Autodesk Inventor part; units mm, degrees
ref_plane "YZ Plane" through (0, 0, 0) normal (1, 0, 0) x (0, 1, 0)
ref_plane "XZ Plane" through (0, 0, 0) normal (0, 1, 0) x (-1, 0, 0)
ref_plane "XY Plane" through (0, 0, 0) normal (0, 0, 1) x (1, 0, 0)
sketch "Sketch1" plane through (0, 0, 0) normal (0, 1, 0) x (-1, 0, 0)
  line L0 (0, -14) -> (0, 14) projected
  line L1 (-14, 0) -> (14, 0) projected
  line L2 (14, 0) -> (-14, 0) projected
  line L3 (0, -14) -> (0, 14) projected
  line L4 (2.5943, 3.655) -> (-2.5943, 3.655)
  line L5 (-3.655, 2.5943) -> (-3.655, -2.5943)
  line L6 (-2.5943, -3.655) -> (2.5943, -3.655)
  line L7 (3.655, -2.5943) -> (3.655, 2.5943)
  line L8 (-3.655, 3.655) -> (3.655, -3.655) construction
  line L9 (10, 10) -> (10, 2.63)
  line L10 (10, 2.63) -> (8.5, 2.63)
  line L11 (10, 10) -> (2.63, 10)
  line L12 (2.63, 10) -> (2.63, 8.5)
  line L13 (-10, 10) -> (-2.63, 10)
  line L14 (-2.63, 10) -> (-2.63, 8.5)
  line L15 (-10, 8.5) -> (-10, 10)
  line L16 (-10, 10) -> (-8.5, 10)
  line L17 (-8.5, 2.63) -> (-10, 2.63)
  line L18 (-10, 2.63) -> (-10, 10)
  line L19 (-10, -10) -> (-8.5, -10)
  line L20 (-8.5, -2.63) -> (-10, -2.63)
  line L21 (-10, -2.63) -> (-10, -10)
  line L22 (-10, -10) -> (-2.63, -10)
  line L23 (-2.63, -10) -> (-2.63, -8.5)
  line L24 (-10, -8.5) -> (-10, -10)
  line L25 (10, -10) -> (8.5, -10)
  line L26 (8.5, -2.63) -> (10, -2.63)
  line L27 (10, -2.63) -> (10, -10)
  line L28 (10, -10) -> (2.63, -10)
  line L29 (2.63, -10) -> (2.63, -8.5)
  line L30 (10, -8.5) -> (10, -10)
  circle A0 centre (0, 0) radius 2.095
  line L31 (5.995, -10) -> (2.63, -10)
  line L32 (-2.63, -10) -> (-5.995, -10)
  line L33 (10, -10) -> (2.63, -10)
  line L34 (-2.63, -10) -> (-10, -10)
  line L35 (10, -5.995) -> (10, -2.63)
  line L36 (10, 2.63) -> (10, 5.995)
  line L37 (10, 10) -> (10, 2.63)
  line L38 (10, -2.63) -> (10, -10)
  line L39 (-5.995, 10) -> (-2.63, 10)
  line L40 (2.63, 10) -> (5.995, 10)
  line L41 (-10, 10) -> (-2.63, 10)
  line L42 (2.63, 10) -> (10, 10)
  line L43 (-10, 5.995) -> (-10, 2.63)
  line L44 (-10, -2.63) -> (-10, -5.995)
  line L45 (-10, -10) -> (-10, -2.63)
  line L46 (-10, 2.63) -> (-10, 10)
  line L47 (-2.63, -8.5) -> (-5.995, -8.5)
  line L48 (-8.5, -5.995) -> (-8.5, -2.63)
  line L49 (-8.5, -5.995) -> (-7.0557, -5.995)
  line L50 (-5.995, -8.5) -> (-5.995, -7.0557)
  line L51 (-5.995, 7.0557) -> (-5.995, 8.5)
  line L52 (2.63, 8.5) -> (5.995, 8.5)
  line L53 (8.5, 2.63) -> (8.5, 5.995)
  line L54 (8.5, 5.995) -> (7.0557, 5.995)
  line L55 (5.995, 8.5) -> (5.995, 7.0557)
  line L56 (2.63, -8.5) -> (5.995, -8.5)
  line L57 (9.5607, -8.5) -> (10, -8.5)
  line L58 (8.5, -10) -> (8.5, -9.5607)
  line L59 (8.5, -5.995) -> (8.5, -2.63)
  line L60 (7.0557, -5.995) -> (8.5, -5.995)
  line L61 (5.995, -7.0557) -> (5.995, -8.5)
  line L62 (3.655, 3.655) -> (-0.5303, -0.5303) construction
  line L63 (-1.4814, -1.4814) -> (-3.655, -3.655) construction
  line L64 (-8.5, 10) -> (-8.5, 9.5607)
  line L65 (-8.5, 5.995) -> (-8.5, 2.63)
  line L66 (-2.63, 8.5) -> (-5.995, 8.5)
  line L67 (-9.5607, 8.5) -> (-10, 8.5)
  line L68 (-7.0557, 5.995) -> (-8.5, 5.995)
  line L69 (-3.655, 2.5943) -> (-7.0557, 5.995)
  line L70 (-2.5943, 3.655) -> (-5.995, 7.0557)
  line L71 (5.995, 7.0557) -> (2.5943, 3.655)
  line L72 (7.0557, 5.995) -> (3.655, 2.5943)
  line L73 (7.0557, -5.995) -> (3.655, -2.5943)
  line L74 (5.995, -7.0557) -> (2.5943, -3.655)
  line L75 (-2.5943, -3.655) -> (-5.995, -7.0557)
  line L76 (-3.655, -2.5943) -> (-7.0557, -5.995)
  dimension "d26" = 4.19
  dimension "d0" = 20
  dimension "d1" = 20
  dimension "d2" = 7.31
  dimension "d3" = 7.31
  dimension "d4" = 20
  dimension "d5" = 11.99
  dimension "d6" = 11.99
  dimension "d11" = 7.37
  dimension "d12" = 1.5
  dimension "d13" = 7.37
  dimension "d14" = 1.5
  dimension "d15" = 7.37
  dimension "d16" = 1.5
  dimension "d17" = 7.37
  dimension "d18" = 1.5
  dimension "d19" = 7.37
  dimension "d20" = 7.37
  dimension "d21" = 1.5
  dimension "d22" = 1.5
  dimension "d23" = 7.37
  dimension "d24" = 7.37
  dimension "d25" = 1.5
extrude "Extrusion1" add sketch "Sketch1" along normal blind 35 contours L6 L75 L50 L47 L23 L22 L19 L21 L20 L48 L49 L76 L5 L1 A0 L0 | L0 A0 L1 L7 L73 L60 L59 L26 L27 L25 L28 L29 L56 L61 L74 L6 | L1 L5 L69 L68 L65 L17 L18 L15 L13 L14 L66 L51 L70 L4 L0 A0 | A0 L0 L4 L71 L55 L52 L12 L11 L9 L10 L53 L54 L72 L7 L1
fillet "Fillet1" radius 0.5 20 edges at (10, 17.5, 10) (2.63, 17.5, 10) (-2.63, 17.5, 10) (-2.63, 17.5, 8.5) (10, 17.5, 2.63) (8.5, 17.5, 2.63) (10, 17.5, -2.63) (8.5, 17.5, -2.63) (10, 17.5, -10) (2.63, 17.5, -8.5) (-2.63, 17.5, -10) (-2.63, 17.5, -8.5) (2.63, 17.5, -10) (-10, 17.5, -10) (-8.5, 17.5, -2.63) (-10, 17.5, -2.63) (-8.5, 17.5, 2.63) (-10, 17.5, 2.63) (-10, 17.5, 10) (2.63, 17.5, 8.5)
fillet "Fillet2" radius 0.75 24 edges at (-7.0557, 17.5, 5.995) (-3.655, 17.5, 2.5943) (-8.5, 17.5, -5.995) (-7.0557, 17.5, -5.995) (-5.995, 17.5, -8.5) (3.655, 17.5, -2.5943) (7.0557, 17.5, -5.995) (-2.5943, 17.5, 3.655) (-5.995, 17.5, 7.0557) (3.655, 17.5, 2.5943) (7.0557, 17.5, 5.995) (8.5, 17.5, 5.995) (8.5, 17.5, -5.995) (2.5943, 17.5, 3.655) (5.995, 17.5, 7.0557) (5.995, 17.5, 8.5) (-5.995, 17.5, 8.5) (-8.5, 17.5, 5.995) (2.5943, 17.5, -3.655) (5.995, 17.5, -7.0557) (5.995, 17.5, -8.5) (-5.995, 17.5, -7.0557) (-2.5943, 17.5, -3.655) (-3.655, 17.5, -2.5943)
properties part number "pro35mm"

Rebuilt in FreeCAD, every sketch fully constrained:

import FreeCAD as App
import Part
import Sketcher
Q = App.Units.Quantity


def edges_at(feature, points):
    """Names of the edges that pass closest to the given points."""
    edges = feature.Shape.Edges
    near = lambda p: min(range(len(edges)), key=lambda i: edges[i].distToShape(Part.Vertex(*p))[0])
    return sorted({f"Edge{near(p) + 1}" for p in points})


def add_polygon(sketch, points):
    """Adds a closed chain of lines whose ends are joined by coincident constraints."""
    first, n = sketch.GeometryCount, len(points)
    for a, b in zip(points, points[1:] + points[:1]):
        sketch.addGeometry(Part.LineSegment(App.Vector(*a, 0), App.Vector(*b, 0)), False)
    for i in range(n):
        sketch.addConstraint(Sketcher.Constraint("Coincident", first + i, 2, first + (i + 1) % n, 1))

doc = App.newDocument("Part")
body = doc.addObject("PartDesign::Body", "Body")

# Sketch on XZ plane
sketch1 = body.newObject("Sketcher::SketchObject", "Sketch")
sketch1.AttachmentSupport = (doc.getObject("XZ_Plane"), [""])
sketch1.MapMode = "FlatFace"
add_polygon(sketch1, [(2.6, -3.7), (-2.6, -3.7), (-6, -7.1), (-6, -8.5), (-2.6, -8.5), (-2.6, -10), (-10, -10), (-10, -2.6), (-8.5, -2.6), (-8.5, -6), (-7.1, -6), (-3.7, -2.6), (-3.7, 2.6), (-7.1, 6), (-8.5, 6), (-8.5, 2.6), (-10, 2.6), (-10, 10), (-2.6, 10), (-2.6, 8.5), (-6, 8.5), (-6, 7.1), (-2.6, 3.7), (2.6, 3.7), (6, 7.1), (6, 8.5), (2.6, 8.5), (2.6, 10), (10, 10), (10, 2.6), (8.5, 2.6), (8.5, 6), (7.1, 6), (3.7, 2.6), (3.7, -2.6), (7.1, -6), (8.5, -6), (8.5, -2.6), (10, -2.6), (10, -10), (2.6, -10), (2.6, -8.5), (6, -8.5), (6, -7.1)])  # lines 0-43
sketch1.addGeometry(Part.Circle(App.Vector(0, 0, 0), App.Vector(0, 0, 1), 2.1), False)  # 44
sketch1.addConstraint(Sketcher.Constraint("Horizontal", 0))
sketch1.addConstraint(Sketcher.Constraint("Vertical", 2))
sketch1.addConstraint(Sketcher.Constraint("Horizontal", 3))
sketch1.addConstraint(Sketcher.Constraint("Vertical", 4))
sketch1.addConstraint(Sketcher.Constraint("Horizontal", 5))
sketch1.addConstraint(Sketcher.Constraint("Vertical", 6))
sketch1.addConstraint(Sketcher.Constraint("Horizontal", 7))
sketch1.addConstraint(Sketcher.Constraint("Vertical", 8))
sketch1.addConstraint(Sketcher.Constraint("Horizontal", 9))
sketch1.addConstraint(Sketcher.Constraint("Vertical", 11))
sketch1.addConstraint(Sketcher.Constraint("Horizontal", 13))
sketch1.addConstraint(Sketcher.Constraint("Vertical", 14))
sketch1.addConstraint(Sketcher.Constraint("Horizontal", 15))
sketch1.addConstraint(Sketcher.Constraint("Vertical", 16))
sketch1.addConstraint(Sketcher.Constraint("Horizontal", 17))
sketch1.addConstraint(Sketcher.Constraint("Vertical", 18))
sketch1.addConstraint(Sketcher.Constraint("Horizontal", 19))
sketch1.addConstraint(Sketcher.Constraint("Vertical", 20))
sketch1.addConstraint(Sketcher.Constraint("Horizontal", 22))
sketch1.addConstraint(Sketcher.Constraint("Vertical", 24))
sketch1.addConstraint(Sketcher.Constraint("Horizontal", 25))
sketch1.addConstraint(Sketcher.Constraint("Vertical", 26))
sketch1.addConstraint(Sketcher.Constraint("Horizontal", 27))
sketch1.addConstraint(Sketcher.Constraint("Vertical", 28))
sketch1.addConstraint(Sketcher.Constraint("Horizontal", 29))
sketch1.addConstraint(Sketcher.Constraint("Vertical", 30))
sketch1.addConstraint(Sketcher.Constraint("Horizontal", 31))
sketch1.addConstraint(Sketcher.Constraint("Vertical", 33))
sketch1.addConstraint(Sketcher.Constraint("Horizontal", 35))
sketch1.addConstraint(Sketcher.Constraint("Vertical", 36))
sketch1.addConstraint(Sketcher.Constraint("Horizontal", 37))
sketch1.addConstraint(Sketcher.Constraint("Vertical", 38))
sketch1.addConstraint(Sketcher.Constraint("Horizontal", 39))
sketch1.addConstraint(Sketcher.Constraint("Vertical", 40))
sketch1.addConstraint(Sketcher.Constraint("Horizontal", 41))
sketch1.addConstraint(Sketcher.Constraint("Vertical", 42))
sketch1.addConstraint(Sketcher.Constraint("Coincident", 44, 3, -1, 1))
sketch1.addConstraint(Sketcher.Constraint("Symmetric", 0, 2, 22, 2, -1, 1))
sketch1.addConstraint(Sketcher.Constraint("Symmetric", 1, 2, 23, 2, -1, 1))
sketch1.addConstraint(Sketcher.Constraint("Symmetric", 3, 2, 25, 2, -1, 1))
sketch1.addConstraint(Sketcher.Constraint("Symmetric", 5, 2, 27, 2, -1, 1))
sketch1.addConstraint(Sketcher.Constraint("Symmetric", 7, 2, 29, 2, -1, 1))
sketch1.addConstraint(Sketcher.Constraint("Symmetric", 9, 2, 31, 2, -1, 1))
sketch1.addConstraint(Sketcher.Constraint("Symmetric", 10, 2, 32, 2, -1, 1))
sketch1.addConstraint(Sketcher.Constraint("Symmetric", 12, 2, 34, 2, -1, 1))
sketch1.addConstraint(Sketcher.Constraint("Symmetric", 14, 2, 36, 2, -1, 1))
sketch1.addConstraint(Sketcher.Constraint("Symmetric", 16, 2, 38, 2, -1, 1))
sketch1.addConstraint(Sketcher.Constraint("Symmetric", 18, 2, 40, 2, -1, 1))
sketch1.addConstraint(Sketcher.Constraint("Symmetric", 20, 2, 42, 2, -1, 1))
sketch1.addConstraint(Sketcher.Constraint("Symmetric", 20, 2, 23, 2, -2))
sketch1.addConstraint(Sketcher.Constraint("Symmetric", 18, 2, 25, 2, -2))
sketch1.addConstraint(Sketcher.Constraint("Symmetric", 16, 2, 27, 2, -2))
sketch1.addConstraint(Sketcher.Constraint("Symmetric", 14, 2, 29, 2, -2))
sketch1.addConstraint(Sketcher.Constraint("Symmetric", 12, 2, 31, 2, -2))
sketch1.addConstraint(Sketcher.Constraint("Parallel", 1, 10))
sketch1.addConstraint(Sketcher.Constraint("Perpendicular", 10, 12))
sketch1.addConstraint(Sketcher.Constraint("Parallel", 12, 21))
sketch1.addConstraint(Sketcher.Constraint("Perpendicular", 32, 34))
sketch1.addConstraint(Sketcher.Constraint("Parallel", 34, 43))
sketch1.addConstraint(Sketcher.Constraint("Horizontal", 11, 2, 32, 2))
sketch1.addConstraint(Sketcher.Constraint("Equal", 35, 2))
sketch1.addConstraint(Sketcher.Constraint("Equal", 37, 4))
sketch1.addConstraint(Sketcher.Constraint("Equal", 39, 6))
sketch1.addConstraint(Sketcher.Constraint("Equal", 41, 8))
sketch1.addConstraint(Sketcher.Constraint("Equal", 22, 11))
sketch1.addConstraint(Sketcher.Constraint("Equal", 1, 10))
sketch1.addConstraint(Sketcher.Constraint("Diameter", 44, Q("4.19 mm")))
sketch1.addConstraint(Sketcher.Constraint("DistanceX", 7, 1, 7, 2, Q("1.5 mm")))
sketch1.addConstraint(Sketcher.Constraint("DistanceX", 5, 2, 5, 1, Q("7.37 mm")))
sketch1.addConstraint(Sketcher.Constraint("DistanceY", 4, 2, -1, 1, Q("10 mm")))
sketch1.addConstraint(Sketcher.Constraint("DistanceX", 3, 1, 3, 2, Q("3.365 mm")))
sketch1.addConstraint(Sketcher.Constraint("DistanceX", 1, 2, 10, 2, Q("2.34 mm")))
sketch1.addConstraint(Sketcher.Constraint("DistanceX", 0, 2, 0, 1, Q("5.1886 mm")))
pad1 = body.newObject("PartDesign::Pad", "Pad")
pad1.Profile = sketch1
pad1.Length = 35
pad1.Reversed = True
doc.recompute()

fillet = body.newObject("PartDesign::Fillet", "Fillet")
fillet.Base = (pad1, edges_at(pad1, [
    (10, 17.5, 10),
    (2.63, 17.5, 10),
    (-2.63, 17.5, 10),
    (-2.63, 17.5, 8.5),
    (10, 17.5, 2.63),
    (8.5, 17.5, 2.63),
    (10, 17.5, -2.63),
    (8.5, 17.5, -2.63),
    (10, 17.5, -10),
    (2.63, 17.5, -8.5),
    (-2.63, 17.5, -10),
    (-2.63, 17.5, -8.5),
    (2.63, 17.5, -10),
    (-10, 17.5, -10),
    (-8.5, 17.5, -2.63),
    (-10, 17.5, -2.63),
    (-8.5, 17.5, 2.63),
    (-10, 17.5, 2.63),
    (-10, 17.5, 10),
    (2.63, 17.5, 8.5),
]))
fillet.Radius = 0.5
doc.recompute()

fillet2 = body.newObject("PartDesign::Fillet", "Fillet001")
fillet2.Base = (fillet, edges_at(fillet, [
    (-7.056, 17.5, 5.995),
    (-3.655, 17.5, 2.594),
    (-8.5, 17.5, -5.995),
    (-7.056, 17.5, -5.995),
    (-5.995, 17.5, -8.5),
    (3.655, 17.5, -2.594),
    (7.056, 17.5, -5.995),
    (-2.594, 17.5, 3.655),
    (-5.995, 17.5, 7.056),
    (3.655, 17.5, 2.594),
    (7.056, 17.5, 5.995),
    (8.5, 17.5, 5.995),
    (8.5, 17.5, -5.995),
    (2.594, 17.5, 3.655),
    (5.995, 17.5, 7.056),
    (5.995, 17.5, 8.5),
    (-5.995, 17.5, 8.5),
    (-8.5, 17.5, 5.995),
    (2.594, 17.5, -3.655),
    (5.995, 17.5, -7.056),
    (5.995, 17.5, -8.5),
    (-5.995, 17.5, -7.056),
    (-2.594, 17.5, -3.655),
    (-3.655, 17.5, -2.594),
]))
fillet2.Radius = 0.75

doc.recompute()
